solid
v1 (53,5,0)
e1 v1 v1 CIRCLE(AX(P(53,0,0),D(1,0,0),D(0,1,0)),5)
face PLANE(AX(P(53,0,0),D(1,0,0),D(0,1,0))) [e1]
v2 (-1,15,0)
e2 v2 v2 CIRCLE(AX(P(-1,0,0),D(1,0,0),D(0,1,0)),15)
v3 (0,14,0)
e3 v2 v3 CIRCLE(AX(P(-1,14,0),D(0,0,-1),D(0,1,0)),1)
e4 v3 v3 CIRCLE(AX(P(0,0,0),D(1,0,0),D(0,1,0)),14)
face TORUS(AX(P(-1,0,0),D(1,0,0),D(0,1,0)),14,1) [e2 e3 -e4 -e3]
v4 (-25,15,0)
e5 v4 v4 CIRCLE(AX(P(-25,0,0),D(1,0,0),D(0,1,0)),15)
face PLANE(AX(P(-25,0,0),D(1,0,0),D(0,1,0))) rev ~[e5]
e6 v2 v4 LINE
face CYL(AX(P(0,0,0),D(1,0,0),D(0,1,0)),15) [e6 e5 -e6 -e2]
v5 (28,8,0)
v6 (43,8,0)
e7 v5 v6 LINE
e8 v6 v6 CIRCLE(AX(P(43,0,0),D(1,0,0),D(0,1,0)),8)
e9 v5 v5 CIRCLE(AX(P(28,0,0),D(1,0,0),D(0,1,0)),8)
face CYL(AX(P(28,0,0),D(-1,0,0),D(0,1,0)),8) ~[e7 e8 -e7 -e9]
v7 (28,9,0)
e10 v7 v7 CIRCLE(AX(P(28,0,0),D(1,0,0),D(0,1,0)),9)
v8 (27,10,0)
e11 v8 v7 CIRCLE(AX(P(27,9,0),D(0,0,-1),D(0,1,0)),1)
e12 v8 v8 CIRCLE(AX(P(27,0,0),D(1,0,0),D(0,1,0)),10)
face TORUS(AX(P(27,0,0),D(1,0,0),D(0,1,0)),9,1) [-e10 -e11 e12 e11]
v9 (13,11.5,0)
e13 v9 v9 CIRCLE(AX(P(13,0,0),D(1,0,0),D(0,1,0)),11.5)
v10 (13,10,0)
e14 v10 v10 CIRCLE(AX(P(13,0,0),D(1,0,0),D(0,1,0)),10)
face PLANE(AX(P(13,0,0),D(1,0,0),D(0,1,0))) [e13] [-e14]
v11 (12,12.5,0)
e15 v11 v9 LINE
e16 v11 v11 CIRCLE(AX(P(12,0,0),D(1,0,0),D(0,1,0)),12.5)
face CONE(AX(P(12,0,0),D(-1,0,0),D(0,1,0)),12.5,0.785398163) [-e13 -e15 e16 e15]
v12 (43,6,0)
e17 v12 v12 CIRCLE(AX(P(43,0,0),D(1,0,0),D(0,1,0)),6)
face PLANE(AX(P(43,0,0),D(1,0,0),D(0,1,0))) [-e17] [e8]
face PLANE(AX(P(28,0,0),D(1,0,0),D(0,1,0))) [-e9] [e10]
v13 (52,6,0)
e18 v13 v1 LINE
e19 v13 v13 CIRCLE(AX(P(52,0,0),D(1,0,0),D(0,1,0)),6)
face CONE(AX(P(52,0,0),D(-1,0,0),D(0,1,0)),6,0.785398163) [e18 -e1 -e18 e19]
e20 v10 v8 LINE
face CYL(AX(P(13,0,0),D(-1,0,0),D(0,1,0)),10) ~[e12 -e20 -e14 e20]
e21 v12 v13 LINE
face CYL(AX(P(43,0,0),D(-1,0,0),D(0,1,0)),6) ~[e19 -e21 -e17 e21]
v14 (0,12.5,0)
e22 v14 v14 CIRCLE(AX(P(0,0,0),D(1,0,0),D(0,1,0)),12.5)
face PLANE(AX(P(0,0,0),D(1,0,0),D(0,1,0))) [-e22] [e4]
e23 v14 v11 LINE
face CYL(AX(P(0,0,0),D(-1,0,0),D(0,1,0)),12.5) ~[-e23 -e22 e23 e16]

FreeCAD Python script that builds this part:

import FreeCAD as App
import Part
import Sketcher
from FreeCAD import Vector


def edges_at(feature, points):
    """Names of the edges that pass closest to the given points."""
    edges = feature.Shape.Edges
    near = lambda p: min(range(len(edges)), key=lambda i: edges[i].distToShape(Part.Vertex(*p))[0])
    return sorted({f"Edge{near(p) + 1}" for p in points})

doc = App.newDocument("Part")
body = doc.addObject("PartDesign::Body", "Body")

sketch1 = body.newObject("Sketcher::SketchObject", "Sketch")
sketch1.AttachmentSupport = (doc.getObject("YZ_Plane"), [""])
sketch1.MapMode = "FlatFace"
sketch1.addGeometry(Part.Circle(Vector(0, 0, 0), Vector(0, 0, 1), 15), False)
sketch1.addConstraint([
    Sketcher.Constraint("Coincident", 0, 3, -1, 1),
    Sketcher.Constraint("Diameter", 0, 30.0),
])
pad1 = body.newObject("PartDesign::Pad", "Pad")
pad1.Profile = sketch1
pad1.Length = 25
pad1.Reversed = True

sketch2 = body.newObject("Sketcher::SketchObject", "Sketch001")
sketch2.AttachmentSupport = (doc.getObject("YZ_Plane"), [""])
sketch2.MapMode = "FlatFace"
sketch2.addGeometry(Part.Circle(Vector(0, 0, 0), Vector(0, 0, 1), 12), False)
sketch2.addConstraint([
    Sketcher.Constraint("Coincident", 0, 3, -1, 1),
    Sketcher.Constraint("Diameter", 0, 25.0),
])
pad2 = body.newObject("PartDesign::Pad", "Pad001")
pad2.Profile = sketch2
pad2.Length = 13

sketch3 = body.newObject("Sketcher::SketchObject", "Sketch002")
sketch3.AttachmentSupport = (doc.getObject("YZ_Plane"), [""])
sketch3.MapMode = "FlatFace"
sketch3.AttachmentOffset = App.Placement(Vector(0, 0, 13), App.Rotation())
sketch3.addGeometry(Part.Circle(Vector(0, 0, 0), Vector(0, 0, 1), 10), False)
sketch3.addConstraint([
    Sketcher.Constraint("Coincident", 0, 3, -1, 1),
    Sketcher.Constraint("Diameter", 0, 20.0),
])
pad3 = body.newObject("PartDesign::Pad", "Pad002")
pad3.Profile = sketch3
pad3.Length = 15

sketch4 = body.newObject("Sketcher::SketchObject", "Sketch003")
sketch4.AttachmentSupport = (doc.getObject("YZ_Plane"), [""])
sketch4.MapMode = "FlatFace"
sketch4.AttachmentOffset = App.Placement(Vector(0, 0, 28), App.Rotation())
sketch4.addGeometry(Part.Circle(Vector(0, 0, 0), Vector(0, 0, 1), 8), False)
sketch4.addConstraint([
    Sketcher.Constraint("Coincident", 0, 3, -1, 1),
    Sketcher.Constraint("Diameter", 0, 16.0),
])
pad4 = body.newObject("PartDesign::Pad", "Pad003")
pad4.Profile = sketch4
pad4.Length = 15

sketch5 = body.newObject("Sketcher::SketchObject", "Sketch004")
sketch5.AttachmentSupport = (doc.getObject("YZ_Plane"), [""])
sketch5.MapMode = "FlatFace"
sketch5.AttachmentOffset = App.Placement(Vector(0, 0, 43), App.Rotation())
sketch5.addGeometry(Part.Circle(Vector(0, 0, 0), Vector(0, 0, 1), 6), False)
sketch5.addConstraint([
    Sketcher.Constraint("Coincident", 0, 3, -1, 1),
    Sketcher.Constraint("Diameter", 0, 12.0),
])
pad5 = body.newObject("PartDesign::Pad", "Pad004")
pad5.Profile = sketch5
pad5.Length = 10
doc.recompute()

fillet = body.newObject("PartDesign::Fillet", "Fillet")
fillet.Base = (pad5, edges_at(pad5, [(0, -15, 0), (28, -10, 0)]))
fillet.Radius = 1
doc.recompute()

chamfer = body.newObject("PartDesign::Chamfer", "Chamfer")
chamfer.Base = (fillet, edges_at(fillet, [(13, -12.5, 0), (53, -6, 0)]))
chamfer.Size = 1

doc.recompute()
